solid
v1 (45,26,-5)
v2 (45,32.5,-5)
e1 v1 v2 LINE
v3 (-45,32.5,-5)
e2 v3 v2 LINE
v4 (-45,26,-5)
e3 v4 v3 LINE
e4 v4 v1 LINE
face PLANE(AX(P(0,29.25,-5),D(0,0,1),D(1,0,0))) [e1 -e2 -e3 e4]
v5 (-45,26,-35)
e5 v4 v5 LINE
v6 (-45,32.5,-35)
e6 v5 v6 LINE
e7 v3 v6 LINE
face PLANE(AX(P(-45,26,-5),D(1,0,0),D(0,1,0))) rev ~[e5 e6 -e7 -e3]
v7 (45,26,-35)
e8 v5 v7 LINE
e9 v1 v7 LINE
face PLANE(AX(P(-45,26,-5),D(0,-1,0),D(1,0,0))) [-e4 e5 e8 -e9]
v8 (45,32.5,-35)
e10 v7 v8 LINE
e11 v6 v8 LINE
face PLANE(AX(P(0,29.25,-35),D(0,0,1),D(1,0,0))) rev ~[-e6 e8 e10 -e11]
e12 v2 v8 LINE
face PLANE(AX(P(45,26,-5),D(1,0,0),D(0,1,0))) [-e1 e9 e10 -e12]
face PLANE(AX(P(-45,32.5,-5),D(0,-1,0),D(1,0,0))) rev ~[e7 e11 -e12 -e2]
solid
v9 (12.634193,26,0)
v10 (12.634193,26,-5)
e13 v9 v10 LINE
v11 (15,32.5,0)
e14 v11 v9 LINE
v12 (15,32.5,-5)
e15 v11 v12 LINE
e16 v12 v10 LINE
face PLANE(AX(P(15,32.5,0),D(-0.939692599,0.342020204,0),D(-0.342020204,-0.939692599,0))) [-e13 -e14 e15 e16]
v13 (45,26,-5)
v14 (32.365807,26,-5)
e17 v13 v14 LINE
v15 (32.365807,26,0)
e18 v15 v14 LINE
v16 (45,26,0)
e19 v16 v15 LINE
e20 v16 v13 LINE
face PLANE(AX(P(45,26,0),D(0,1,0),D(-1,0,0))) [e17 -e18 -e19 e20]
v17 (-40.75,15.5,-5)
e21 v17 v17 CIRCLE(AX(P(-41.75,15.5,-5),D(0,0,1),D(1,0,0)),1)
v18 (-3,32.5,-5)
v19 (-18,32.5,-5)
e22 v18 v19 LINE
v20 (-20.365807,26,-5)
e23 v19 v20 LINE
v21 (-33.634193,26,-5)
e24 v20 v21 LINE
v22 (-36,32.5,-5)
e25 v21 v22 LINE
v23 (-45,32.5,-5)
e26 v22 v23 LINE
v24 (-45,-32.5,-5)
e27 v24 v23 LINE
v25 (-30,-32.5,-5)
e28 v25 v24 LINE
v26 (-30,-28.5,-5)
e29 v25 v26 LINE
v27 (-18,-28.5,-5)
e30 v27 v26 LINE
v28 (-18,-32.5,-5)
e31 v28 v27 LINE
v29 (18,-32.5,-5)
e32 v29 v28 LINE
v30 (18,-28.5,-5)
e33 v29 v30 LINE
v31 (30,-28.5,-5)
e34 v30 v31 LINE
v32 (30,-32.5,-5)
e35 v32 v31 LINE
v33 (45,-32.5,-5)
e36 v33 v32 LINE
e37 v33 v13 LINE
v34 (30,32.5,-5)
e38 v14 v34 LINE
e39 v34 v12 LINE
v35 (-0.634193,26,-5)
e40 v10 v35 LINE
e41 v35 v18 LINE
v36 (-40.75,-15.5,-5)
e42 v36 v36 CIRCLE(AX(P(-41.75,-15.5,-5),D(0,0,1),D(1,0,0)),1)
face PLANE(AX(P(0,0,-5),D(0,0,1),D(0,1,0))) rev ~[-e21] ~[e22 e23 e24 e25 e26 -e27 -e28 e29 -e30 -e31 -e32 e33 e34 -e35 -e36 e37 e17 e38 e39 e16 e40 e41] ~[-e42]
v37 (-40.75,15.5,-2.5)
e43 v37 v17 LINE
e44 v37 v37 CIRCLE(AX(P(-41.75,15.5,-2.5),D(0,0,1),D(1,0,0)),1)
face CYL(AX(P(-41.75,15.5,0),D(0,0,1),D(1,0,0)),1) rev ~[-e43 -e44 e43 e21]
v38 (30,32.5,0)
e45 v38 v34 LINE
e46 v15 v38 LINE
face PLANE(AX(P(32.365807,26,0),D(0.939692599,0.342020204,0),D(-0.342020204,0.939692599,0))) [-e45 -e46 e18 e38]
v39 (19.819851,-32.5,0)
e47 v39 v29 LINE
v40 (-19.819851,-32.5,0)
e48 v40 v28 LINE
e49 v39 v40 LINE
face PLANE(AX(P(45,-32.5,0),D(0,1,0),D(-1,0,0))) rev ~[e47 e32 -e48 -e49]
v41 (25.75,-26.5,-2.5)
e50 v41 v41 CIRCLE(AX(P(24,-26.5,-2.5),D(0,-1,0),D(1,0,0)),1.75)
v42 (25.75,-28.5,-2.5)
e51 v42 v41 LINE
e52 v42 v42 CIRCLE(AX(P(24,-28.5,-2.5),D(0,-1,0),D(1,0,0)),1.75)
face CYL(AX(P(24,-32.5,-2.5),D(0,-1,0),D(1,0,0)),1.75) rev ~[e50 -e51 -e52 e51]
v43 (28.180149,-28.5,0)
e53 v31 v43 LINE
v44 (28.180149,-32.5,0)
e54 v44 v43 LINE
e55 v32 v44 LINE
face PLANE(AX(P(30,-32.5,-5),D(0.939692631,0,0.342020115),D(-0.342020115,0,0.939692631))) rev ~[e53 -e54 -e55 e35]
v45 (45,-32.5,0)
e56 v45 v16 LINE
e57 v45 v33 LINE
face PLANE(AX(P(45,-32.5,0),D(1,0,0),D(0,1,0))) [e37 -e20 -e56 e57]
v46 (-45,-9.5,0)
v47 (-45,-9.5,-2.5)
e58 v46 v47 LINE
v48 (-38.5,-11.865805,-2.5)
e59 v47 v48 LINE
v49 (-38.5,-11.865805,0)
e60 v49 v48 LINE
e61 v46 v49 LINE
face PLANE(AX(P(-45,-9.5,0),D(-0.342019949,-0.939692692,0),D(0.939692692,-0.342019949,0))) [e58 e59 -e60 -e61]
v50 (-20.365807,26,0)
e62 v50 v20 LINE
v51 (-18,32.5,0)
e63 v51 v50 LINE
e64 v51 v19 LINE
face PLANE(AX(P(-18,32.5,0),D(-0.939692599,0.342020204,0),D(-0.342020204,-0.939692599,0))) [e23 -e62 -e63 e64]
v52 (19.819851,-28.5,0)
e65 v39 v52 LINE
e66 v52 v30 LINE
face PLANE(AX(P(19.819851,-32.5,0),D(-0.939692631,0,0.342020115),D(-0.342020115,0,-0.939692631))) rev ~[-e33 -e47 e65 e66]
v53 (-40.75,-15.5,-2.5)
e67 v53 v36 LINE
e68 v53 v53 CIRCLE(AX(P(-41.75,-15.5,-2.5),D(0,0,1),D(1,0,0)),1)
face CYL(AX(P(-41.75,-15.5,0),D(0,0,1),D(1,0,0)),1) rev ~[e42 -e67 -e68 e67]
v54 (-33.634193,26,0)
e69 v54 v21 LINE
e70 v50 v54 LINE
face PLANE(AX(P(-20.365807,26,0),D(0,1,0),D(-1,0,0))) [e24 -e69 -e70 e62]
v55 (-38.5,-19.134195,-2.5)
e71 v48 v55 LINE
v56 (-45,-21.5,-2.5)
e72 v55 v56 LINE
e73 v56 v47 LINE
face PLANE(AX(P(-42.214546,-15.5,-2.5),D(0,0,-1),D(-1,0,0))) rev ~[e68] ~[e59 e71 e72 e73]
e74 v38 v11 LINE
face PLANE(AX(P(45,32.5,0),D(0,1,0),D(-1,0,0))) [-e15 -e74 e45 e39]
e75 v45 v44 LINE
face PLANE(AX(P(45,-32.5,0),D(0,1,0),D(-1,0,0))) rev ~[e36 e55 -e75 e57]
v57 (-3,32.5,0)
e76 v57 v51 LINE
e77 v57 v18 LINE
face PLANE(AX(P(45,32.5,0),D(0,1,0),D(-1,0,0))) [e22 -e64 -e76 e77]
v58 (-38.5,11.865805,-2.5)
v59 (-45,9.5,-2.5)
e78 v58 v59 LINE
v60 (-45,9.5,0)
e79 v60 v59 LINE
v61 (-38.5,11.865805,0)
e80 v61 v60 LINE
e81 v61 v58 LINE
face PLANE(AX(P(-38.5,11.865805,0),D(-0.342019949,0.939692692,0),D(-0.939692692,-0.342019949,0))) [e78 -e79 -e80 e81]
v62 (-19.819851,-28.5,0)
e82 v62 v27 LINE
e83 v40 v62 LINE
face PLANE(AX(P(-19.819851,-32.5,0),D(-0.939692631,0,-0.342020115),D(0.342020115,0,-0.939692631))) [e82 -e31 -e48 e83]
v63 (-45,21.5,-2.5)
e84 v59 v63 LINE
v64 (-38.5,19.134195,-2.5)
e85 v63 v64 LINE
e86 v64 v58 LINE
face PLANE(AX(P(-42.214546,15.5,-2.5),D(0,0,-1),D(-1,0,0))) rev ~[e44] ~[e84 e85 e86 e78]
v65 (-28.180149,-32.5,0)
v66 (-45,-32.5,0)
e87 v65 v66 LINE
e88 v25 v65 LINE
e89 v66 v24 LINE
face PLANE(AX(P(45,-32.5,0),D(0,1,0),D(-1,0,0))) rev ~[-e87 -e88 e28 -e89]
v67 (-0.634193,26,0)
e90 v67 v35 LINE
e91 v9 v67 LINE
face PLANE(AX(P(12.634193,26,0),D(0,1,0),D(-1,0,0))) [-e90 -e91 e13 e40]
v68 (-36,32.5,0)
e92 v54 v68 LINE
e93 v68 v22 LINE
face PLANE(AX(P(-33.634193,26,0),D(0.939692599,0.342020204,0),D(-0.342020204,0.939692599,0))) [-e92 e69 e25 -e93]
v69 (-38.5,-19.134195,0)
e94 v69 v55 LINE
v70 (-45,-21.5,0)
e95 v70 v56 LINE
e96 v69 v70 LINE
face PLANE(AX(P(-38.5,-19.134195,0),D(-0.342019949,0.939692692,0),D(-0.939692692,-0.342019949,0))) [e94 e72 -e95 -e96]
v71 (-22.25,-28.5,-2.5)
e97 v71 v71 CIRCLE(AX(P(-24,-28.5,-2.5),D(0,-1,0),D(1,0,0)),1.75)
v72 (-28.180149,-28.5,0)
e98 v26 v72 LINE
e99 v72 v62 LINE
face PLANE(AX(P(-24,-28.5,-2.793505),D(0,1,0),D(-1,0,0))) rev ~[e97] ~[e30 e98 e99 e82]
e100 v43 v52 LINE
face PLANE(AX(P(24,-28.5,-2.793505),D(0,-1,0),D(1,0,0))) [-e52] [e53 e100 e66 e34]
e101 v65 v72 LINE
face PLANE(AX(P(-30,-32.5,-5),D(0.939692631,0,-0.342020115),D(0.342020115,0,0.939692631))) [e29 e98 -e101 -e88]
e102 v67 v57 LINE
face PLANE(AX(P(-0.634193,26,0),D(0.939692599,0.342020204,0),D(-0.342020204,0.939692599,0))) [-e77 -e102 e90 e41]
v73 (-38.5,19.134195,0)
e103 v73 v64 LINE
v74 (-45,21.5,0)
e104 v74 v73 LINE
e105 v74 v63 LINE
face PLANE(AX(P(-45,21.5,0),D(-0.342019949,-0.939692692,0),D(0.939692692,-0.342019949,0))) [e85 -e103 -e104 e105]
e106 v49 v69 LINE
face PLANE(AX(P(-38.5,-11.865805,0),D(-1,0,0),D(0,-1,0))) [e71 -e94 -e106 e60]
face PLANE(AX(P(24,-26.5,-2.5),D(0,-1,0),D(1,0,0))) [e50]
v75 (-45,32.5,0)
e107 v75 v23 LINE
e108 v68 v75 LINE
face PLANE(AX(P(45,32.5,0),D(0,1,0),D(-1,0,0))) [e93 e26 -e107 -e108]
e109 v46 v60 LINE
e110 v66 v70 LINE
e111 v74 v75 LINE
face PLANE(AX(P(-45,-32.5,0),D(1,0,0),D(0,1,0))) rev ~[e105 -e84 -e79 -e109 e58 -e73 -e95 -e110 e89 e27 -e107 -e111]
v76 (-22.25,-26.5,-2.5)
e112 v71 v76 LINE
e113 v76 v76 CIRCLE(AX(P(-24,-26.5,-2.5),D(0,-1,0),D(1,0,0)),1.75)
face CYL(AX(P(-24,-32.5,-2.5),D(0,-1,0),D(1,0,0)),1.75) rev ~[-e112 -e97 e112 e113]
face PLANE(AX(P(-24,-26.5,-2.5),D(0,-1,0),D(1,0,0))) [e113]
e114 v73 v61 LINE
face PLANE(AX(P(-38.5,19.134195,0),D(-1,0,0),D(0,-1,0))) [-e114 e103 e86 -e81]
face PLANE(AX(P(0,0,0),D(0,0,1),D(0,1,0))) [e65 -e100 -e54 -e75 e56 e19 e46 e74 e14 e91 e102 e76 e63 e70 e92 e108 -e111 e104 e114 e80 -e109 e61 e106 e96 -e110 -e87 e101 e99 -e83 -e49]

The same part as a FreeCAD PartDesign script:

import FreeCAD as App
import Part
import Sketcher
Q = App.Units.Quantity


def add_polygon(sketch, points):
    """Adds a closed chain of lines whose ends are joined by coincident constraints."""
    first, n = sketch.GeometryCount, len(points)
    for a, b in zip(points, points[1:] + points[:1]):
        sketch.addGeometry(Part.LineSegment(App.Vector(*a, 0), App.Vector(*b, 0)), False)
    for i in range(n):
        sketch.addConstraint(Sketcher.Constraint("Coincident", first + i, 2, first + (i + 1) % n, 1))

doc = App.newDocument("Part")
params = doc.addObject("Spreadsheet::Sheet", "Params")
for row, (alias, value) in enumerate([
    ("sketch1_width", "90 mm"),
    ("sketch1_height", "65 mm"),
    ("pad1_length", "5 mm"),
    ("sketch2_width", "15 mm"),
    ("sketch2_width2", "18 mm"),
    ("sketch2_height", "6.5 mm"),
    ("sketch3_height", "12 mm"),
    ("pocket2_length", "2.5 mm"),
    ("sketch4_width", "12 mm"),
    ("pocket3_length", "4 mm"),
    ("sketch5_diameter", "3.5 mm"),
    ("pocket4_length", "6 mm"),
    ("sketch6_diameter", "2 mm"),
    ("sketch7_width", "90 mm"),
    ("sketch7_height", "6.5 mm"),
    ("pad2_length", "30 mm"),
], start=1):
    params.set(f"A{row}", alias)
    params.set(f"B{row}", "=" + value)
    params.setAlias(f"B{row}", alias)

body = doc.addObject("PartDesign::Body", "Body")

# Sketch on XY plane
sketch1 = body.newObject("Sketcher::SketchObject", "Sketch")
sketch1.AttachmentSupport = (doc.getObject("XY_Plane"), [""])
sketch1.MapMode = "FlatFace"
add_polygon(sketch1, [(-45, -32.5), (45, -32.5), (45, 32.5), (-45, 32.5)])  # lines 0-3
sketch1.addConstraint([
    Sketcher.Constraint("Horizontal", 0),
    Sketcher.Constraint("Vertical", 1),
    Sketcher.Constraint("Horizontal", 2),
    Sketcher.Constraint("Vertical", 3),
    Sketcher.Constraint("Symmetric", 0, 2, 2, 2, -1, 1),
    Sketcher.Constraint("DistanceX", 0, 1, 0, 2, 90.0),
    Sketcher.Constraint("DistanceY", 1, 1, 1, 2, 65.0),
])
sketch1.setExpression("Constraints[9]", "Params.sketch1_width")
sketch1.setExpression("Constraints[10]", "Params.sketch1_height")
pad1 = body.newObject("PartDesign::Pad", "Pad")
pad1.Profile = sketch1
pad1.setExpression("Length", "Params.pad1_length")
pad1.Reversed = True

# Sketch on XY plane
sketch2 = body.newObject("Sketcher::SketchObject", "Sketch001")
sketch2.AttachmentSupport = (doc.getObject("XY_Plane"), [""])
sketch2.MapMode = "FlatFace"
add_polygon(sketch2, [(45, 26), (45, 32.5), (30, 32.5), (32.365807, 26)])  # lines 0-3
add_polygon(sketch2, [(12.634193, 26), (15, 32.5), (-3, 32.5), (-0.634193, 26)])  # lines 4-7
add_polygon(sketch2, [(-20.365807, 26), (-18, 32.5), (-36, 32.5), (-33.634193, 26)])  # lines 8-11
sketch2.addConstraint([
    Sketcher.Constraint("Vertical", 0),
    Sketcher.Constraint("Horizontal", 1),
    Sketcher.Constraint("Horizontal", 3),
    Sketcher.Constraint("Horizontal", 5),
    Sketcher.Constraint("Horizontal", 7),
    Sketcher.Constraint("Horizontal", 9),
    Sketcher.Constraint("Horizontal", 11),
    Sketcher.Constraint("Parallel", 2, 6),
    Sketcher.Constraint("Parallel", 4, 8),
    Sketcher.Constraint("Parallel", 6, 10),
    Sketcher.Constraint("Horizontal", 1, 2, 4, 2),
    Sketcher.Constraint("Horizontal", 3, 2, 6, 2),
    Sketcher.Constraint("Horizontal", 5, 2, 8, 2),
    Sketcher.Constraint("Horizontal", 7, 2, 10, 2),
    Sketcher.Constraint("Equal", 5, 9),
    Sketcher.Constraint("Equal", 2, 4),
    Sketcher.Constraint("DistanceX", 1, 2, 1, 1, 15.0),
    Sketcher.Constraint("DistanceX", 5, 2, 5, 1, 18.0),
    Sketcher.Constraint("Angle", 2, Q("-69.999996 deg")),
    Sketcher.Constraint("DistanceY", 0, 1, 0, 2, 6.5),
    Sketcher.Constraint("DistanceX", -1, 1, 0, 2, 45.0),
    Sketcher.Constraint("DistanceY", -1, 1, 2, 2, 26.0),
    Sketcher.Constraint("DistanceX", -1, 1, 4, 2, 15.0),
    Sketcher.Constraint("DistanceX", 8, 2, -1, 1, 18.0),
])
sketch2.setExpression("Constraints[28]", "Params.sketch2_width")
sketch2.setExpression("Constraints[29]", "Params.sketch2_width2")
sketch2.setExpression("Constraints[31]", "Params.sketch2_height")
pocket1 = body.newObject("PartDesign::Pocket", "Pocket")
pocket1.Profile = sketch2
pocket1.Type = "ThroughAll"

# Sketch on XY plane
sketch3 = body.newObject("Sketcher::SketchObject", "Sketch002")
sketch3.AttachmentSupport = (doc.getObject("XY_Plane"), [""])
sketch3.MapMode = "FlatFace"
add_polygon(sketch3, [(-38.5, 19.134195), (-45, 21.5), (-45, 9.5), (-38.5, 11.865805)])  # lines 0-3
add_polygon(sketch3, [(-38.5, -11.865805), (-45, -9.5), (-45, -21.5), (-38.5, -19.134195)])  # lines 4-7
sketch3.addConstraint([
    Sketcher.Constraint("Vertical", 1),
    Sketcher.Constraint("Vertical", 3),
    Sketcher.Constraint("Vertical", 5),
    Sketcher.Constraint("Vertical", 7),
    Sketcher.Constraint("Symmetric", 1, 2, 4, 2, -1),
    Sketcher.Constraint("Symmetric", 3, 2, 6, 2, -1),
    Sketcher.Constraint("Parallel", 0, 4),
    Sketcher.Constraint("Parallel", 2, 6),
    Sketcher.Constraint("Equal", 1, 5),
    Sketcher.Constraint("DistanceY", 1, 2, 1, 1, 12.0),
    Sketcher.Constraint("Angle", 0, Q("160.000012 deg")),
    Sketcher.Constraint("DistanceX", 0, 2, -1, 1, 45.0),
    Sketcher.Constraint("DistanceY", 4, 2, 1, 2, 19.0),
    Sketcher.Constraint("DistanceX", 2, 2, -1, 1, 38.5),
])
sketch3.setExpression("Constraints[17]", "Params.sketch3_height")
pocket2 = body.newObject("PartDesign::Pocket", "Pocket001")
pocket2.Profile = sketch3
pocket2.setExpression("Length", "Params.pocket2_length")

# Sketch on XZ plane
sketch4 = body.newObject("Sketcher::SketchObject", "Sketch003")
sketch4.AttachmentSupport = (doc.getObject("XZ_Plane"), [""])
sketch4.MapMode = "FlatFace"
sketch4.AttachmentOffset = App.Placement(App.Vector(0, 0, 32.5), App.Rotation())
add_polygon(sketch4, [(-28.180149, 0), (-30, -5), (-18, -5), (-19.819851, 0)])  # lines 0-3
add_polygon(sketch4, [(30, -5), (28.180149, 0), (19.819851, 0), (18, -5)])  # lines 4-7
sketch4.addConstraint([
    Sketcher.Constraint("Horizontal", 1),
    Sketcher.Constraint("Horizontal", 3),
    Sketcher.Constraint("Horizontal", 5),
    Sketcher.Constraint("Horizontal", 7),
    Sketcher.Constraint("Symmetric", 3, 2, 4, 2, -1, 1),
    Sketcher.Constraint("Symmetric", 2, 2, 5, 2, -2),
    Sketcher.Constraint("Symmetric", 1, 2, 6, 2, -2),
    Sketcher.Constraint("Parallel", 2, 4),
    Sketcher.Constraint("Parallel", 0, 6),
    Sketcher.Constraint("DistanceX", 1, 1, 1, 2, 12.0),
    Sketcher.Constraint("Angle", 0, Q("-109.999998 deg")),
    Sketcher.Constraint("DistanceX", 0, 2, -1, 1, 30.0),
    Sketcher.Constraint("DistanceY", 0, 2, -1, 1, 5.0),
])
sketch4.setExpression("Constraints[17]", "Params.sketch4_width")
pocket3 = body.newObject("PartDesign::Pocket", "Pocket002")
pocket3.Profile = sketch4
pocket3.setExpression("Length", "Params.pocket3_length")

# Sketch on XZ plane
sketch5 = body.newObject("Sketcher::SketchObject", "Sketch004")
sketch5.AttachmentSupport = (doc.getObject("XZ_Plane"), [""])
sketch5.MapMode = "FlatFace"
sketch5.AttachmentOffset = App.Placement(App.Vector(0, 0, 32.5), App.Rotation())
sketch5.addGeometry([
    Part.Circle(App.Vector(-24, -2.5, 0), App.Vector(0, 0, 1), 1.75),
    Part.Circle(App.Vector(24, -2.5, 0), App.Vector(0, 0, 1), 1.75),
], False)
sketch5.addConstraint([
    Sketcher.Constraint("Equal", 0, 1),
    Sketcher.Constraint("Symmetric", 0, 3, 1, 3, -2),
    Sketcher.Constraint("Diameter", 0, 3.5),
    Sketcher.Constraint("DistanceX", 0, 3, -1, 1, 24.0),
    Sketcher.Constraint("DistanceY", 0, 3, -1, 1, 2.5),
])
sketch5.setExpression("Constraints[2]", "Params.sketch5_diameter")
pocket4 = body.newObject("PartDesign::Pocket", "Pocket003")
pocket4.Profile = sketch5
pocket4.setExpression("Length", "Params.pocket4_length")

# Sketch on XY plane
sketch6 = body.newObject("Sketcher::SketchObject", "Sketch005")
sketch6.AttachmentSupport = (doc.getObject("XY_Plane"), [""])
sketch6.MapMode = "FlatFace"
sketch6.addGeometry([
    Part.Circle(App.Vector(-41.75, 15.5, 0), App.Vector(0, 0, 1), 1),
    Part.Circle(App.Vector(-41.75, -15.5, 0), App.Vector(0, 0, 1), 1),
], False)
sketch6.addConstraint([
    Sketcher.Constraint("Equal", 0, 1),
    Sketcher.Constraint("Symmetric", 0, 3, 1, 3, -1),
    Sketcher.Constraint("Diameter", 0, 2.0),
    Sketcher.Constraint("DistanceY", 1, 3, 0, 3, 31.0),
    Sketcher.Constraint("DistanceX", 0, 3, -1, 1, 41.75),
])
sketch6.setExpression("Constraints[2]", "Params.sketch6_diameter")
pocket5 = body.newObject("PartDesign::Pocket", "Pocket004")
pocket5.Profile = sketch6
pocket5.Type = "ThroughAll"
body2 = doc.addObject("PartDesign::Body", "Body001")

# Sketch on XY plane
sketch7 = body2.newObject("Sketcher::SketchObject", "Sketch006")
sketch7.AttachmentSupport = (doc.getObject("XY_Plane001"), [""])
sketch7.MapMode = "FlatFace"
sketch7.AttachmentOffset = App.Placement(App.Vector(0, 0, -5), App.Rotation())
add_polygon(sketch7, [(-45, 32.5), (-45, 26), (45, 26), (45, 32.5)])  # lines 0-3
sketch7.addConstraint([
    Sketcher.Constraint("Vertical", 0),
    Sketcher.Constraint("Horizontal", 1),
    Sketcher.Constraint("Vertical", 2),
    Sketcher.Constraint("Horizontal", 3),
    Sketcher.Constraint("DistanceX", 1, 1, 1, 2, 90.0),
    Sketcher.Constraint("DistanceY", 0, 2, 0, 1, 6.5),
    Sketcher.Constraint("DistanceX", 0, 2, -1, 1, 45.0),
    Sketcher.Constraint("DistanceY", -1, 1, 0, 2, 26.0),
])
sketch7.setExpression("Constraints[8]", "Params.sketch7_width")
sketch7.setExpression("Constraints[9]", "Params.sketch7_height")
pad2 = body2.newObject("PartDesign::Pad", "Pad001")
pad2.Profile = sketch7
pad2.setExpression("Length", "Params.pad2_length")
pad2.Reversed = True

doc.recompute()
